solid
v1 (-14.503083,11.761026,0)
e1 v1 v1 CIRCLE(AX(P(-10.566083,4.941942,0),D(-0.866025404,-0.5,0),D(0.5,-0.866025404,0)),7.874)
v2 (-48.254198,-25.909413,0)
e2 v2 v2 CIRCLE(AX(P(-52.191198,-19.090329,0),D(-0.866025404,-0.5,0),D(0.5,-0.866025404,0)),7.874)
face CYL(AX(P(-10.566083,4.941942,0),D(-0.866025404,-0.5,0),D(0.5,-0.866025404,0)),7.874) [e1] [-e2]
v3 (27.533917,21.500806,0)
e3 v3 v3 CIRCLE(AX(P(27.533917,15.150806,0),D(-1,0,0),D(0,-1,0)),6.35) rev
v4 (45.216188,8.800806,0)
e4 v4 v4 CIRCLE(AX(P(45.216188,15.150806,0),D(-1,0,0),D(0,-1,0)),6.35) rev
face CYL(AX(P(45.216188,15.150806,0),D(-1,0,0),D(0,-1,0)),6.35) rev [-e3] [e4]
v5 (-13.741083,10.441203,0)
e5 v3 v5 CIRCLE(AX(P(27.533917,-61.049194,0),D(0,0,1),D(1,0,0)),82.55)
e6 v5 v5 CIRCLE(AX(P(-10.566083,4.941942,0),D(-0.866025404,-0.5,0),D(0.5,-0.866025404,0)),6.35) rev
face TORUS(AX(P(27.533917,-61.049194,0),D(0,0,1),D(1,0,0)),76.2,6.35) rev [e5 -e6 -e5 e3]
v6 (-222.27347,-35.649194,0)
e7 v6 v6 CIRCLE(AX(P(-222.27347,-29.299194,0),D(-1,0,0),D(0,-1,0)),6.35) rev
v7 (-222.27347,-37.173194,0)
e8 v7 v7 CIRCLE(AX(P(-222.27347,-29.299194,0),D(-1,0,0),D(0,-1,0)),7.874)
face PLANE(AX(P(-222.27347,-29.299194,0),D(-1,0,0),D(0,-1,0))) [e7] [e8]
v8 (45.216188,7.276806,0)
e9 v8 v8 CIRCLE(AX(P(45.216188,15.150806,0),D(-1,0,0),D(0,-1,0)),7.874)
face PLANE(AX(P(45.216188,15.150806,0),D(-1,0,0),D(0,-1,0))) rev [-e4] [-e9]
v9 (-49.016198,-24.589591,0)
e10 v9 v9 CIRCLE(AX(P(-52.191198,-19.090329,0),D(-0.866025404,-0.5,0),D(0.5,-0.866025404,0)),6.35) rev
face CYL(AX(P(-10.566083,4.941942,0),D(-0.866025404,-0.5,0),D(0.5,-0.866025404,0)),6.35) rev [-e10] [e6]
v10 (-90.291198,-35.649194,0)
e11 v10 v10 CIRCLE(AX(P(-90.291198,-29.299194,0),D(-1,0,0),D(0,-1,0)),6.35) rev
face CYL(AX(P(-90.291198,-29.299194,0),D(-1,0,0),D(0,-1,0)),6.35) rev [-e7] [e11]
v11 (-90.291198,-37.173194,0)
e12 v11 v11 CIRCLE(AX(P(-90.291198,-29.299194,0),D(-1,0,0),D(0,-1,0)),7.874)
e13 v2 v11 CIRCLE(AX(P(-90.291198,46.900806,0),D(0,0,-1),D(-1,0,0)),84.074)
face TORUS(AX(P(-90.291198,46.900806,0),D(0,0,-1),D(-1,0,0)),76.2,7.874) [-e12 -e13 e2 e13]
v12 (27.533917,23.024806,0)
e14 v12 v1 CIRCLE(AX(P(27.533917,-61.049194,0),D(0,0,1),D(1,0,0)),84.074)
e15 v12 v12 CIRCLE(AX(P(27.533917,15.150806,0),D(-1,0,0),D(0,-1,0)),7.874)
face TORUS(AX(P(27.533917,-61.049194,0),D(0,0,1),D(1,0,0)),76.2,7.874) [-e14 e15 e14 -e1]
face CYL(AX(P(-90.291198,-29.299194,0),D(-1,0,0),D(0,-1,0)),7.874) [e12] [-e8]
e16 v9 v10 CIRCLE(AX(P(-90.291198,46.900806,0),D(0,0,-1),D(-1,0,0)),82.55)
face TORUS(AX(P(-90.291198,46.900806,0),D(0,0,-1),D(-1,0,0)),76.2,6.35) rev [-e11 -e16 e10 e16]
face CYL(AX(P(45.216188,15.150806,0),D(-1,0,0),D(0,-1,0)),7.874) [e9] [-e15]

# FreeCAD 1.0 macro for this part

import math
import FreeCAD as App
import Part
import Sketcher
from FreeCAD import Vector
Q = App.Units.Quantity

doc = App.newDocument("Part")
params = doc.addObject("Spreadsheet::Sheet", "Params")
for row, (alias, value) in enumerate([
    ("sketch1_diameter", "0.5 in"),
    ("sketch1_diameter2", "0.62 in"),
    ("sketch2_radius", "3 in"),
], start=1):
    params.set(f"A{row}", alias)
    params.set(f"B{row}", "=" + value)
    params.setAlias(f"B{row}", alias)

body = doc.addObject("PartDesign::Body", "Body")

# Sketch on YZ plane
sketch1 = doc.addObject("Sketcher::SketchObject", "Sketch")
body.addObject(sketch1)
sketch1.AttachmentSupport = (doc.YZ_Plane, [""])
sketch1.MapMode = "FlatFace"
sketch1.AttachmentOffset = App.Placement(Vector(0, 0, 45.216188), App.Rotation())
sketch1.addGeometry(Part.Circle(Vector(15, 0, 0), Vector(0, 0, 1), 8), False)
sketch1.addGeometry(Part.Circle(Vector(15, 0, 0), Vector(0, 0, 1), 6), False)
sketch1.addConstraint(Sketcher.Constraint("Coincident", 1, 3, 0, 3))
sketch1.addConstraint(Sketcher.Constraint("PointOnObject", 0, 3, -1))
sketch1.addConstraint(Sketcher.Constraint("Diameter", 1, Q("0.5 in")))
sketch1.addConstraint(Sketcher.Constraint("Diameter", 0, Q("0.62 in")))
sketch1.addConstraint(Sketcher.Constraint("DistanceX", -1, 1, 0, 3, Q("15.150806 mm")))
sketch1.setExpression("Constraints[2]", "Params.sketch1_diameter")
sketch1.setExpression("Constraints[3]", "Params.sketch1_diameter2")

# Sketch on XY plane
sketch2 = doc.addObject("Sketcher::SketchObject", "Sketch001")
body.addObject(sketch2)
sketch2.AttachmentSupport = (doc.XY_Plane, [""])
sketch2.MapMode = "FlatFace"
sketch2.addGeometry(Part.LineSegment(Vector(45, 15, 0), Vector(28, 15, 0)), False)
sketch2.addGeometry(Part.ArcOfCircle(Part.Circle(Vector(28, -61, 0), Vector(0, 0, 1), 76), math.radians(90), math.radians(120)), False)
sketch2.addGeometry(Part.LineSegment(Vector(-11, 5, 0), Vector(-52, -19, 0)), False)
sketch2.addGeometry(Part.ArcOfCircle(Part.Circle(Vector(-90, 47, 0), Vector(0, 0, 1), 76), math.radians(-90), math.radians(-60)), False)
sketch2.addGeometry(Part.LineSegment(Vector(-90, -29, 0), Vector(-222, -29, 0)), False)
sketch2.addConstraint(Sketcher.Constraint("Tangent", 0, 2, 1, 1))
sketch2.addConstraint(Sketcher.Constraint("Tangent", 1, 2, 2, 1))
sketch2.addConstraint(Sketcher.Constraint("Tangent", 2, 2, 3, 2))
sketch2.addConstraint(Sketcher.Constraint("Tangent", 3, 1, 4, 1))
sketch2.addConstraint(Sketcher.Constraint("Horizontal", 0))
sketch2.addConstraint(Sketcher.Constraint("Horizontal", 4))
sketch2.addConstraint(Sketcher.Constraint("Equal", 1, 3))
sketch2.addConstraint(Sketcher.Constraint("Radius", 1, Q("3 in")))
sketch2.addConstraint(Sketcher.Constraint("Angle", 2, Q("-150 deg")))
sketch2.addConstraint(Sketcher.Constraint("DistanceY", 1, 3, 3, 3, Q("4.25 in")))
sketch2.addConstraint(Sketcher.Constraint("DistanceX", 0, 2, 0, 1, Q("17.682272 mm")))
sketch2.addConstraint(Sketcher.Constraint("DistanceX", 4, 2, 4, 1, Q("131.982272 mm")))
sketch2.addConstraint(Sketcher.Constraint("DistanceX", 3, 3, -1, 1, Q("90.291198 mm")))
sketch2.addConstraint(Sketcher.Constraint("DistanceY", 2, 2, -1, 1, Q("19.090329 mm")))
sketch2.setExpression("Constraints[7]", "Params.sketch2_radius")
doc.recompute()

additivepipe = doc.addObject("PartDesign::AdditivePipe", "AdditivePipe")
body.addObject(additivepipe)
additivepipe.Profile = sketch1
additivepipe.Spine = (sketch2, ["Edge1", "Edge2", "Edge3", "Edge4", "Edge5"])

doc.recompute()
